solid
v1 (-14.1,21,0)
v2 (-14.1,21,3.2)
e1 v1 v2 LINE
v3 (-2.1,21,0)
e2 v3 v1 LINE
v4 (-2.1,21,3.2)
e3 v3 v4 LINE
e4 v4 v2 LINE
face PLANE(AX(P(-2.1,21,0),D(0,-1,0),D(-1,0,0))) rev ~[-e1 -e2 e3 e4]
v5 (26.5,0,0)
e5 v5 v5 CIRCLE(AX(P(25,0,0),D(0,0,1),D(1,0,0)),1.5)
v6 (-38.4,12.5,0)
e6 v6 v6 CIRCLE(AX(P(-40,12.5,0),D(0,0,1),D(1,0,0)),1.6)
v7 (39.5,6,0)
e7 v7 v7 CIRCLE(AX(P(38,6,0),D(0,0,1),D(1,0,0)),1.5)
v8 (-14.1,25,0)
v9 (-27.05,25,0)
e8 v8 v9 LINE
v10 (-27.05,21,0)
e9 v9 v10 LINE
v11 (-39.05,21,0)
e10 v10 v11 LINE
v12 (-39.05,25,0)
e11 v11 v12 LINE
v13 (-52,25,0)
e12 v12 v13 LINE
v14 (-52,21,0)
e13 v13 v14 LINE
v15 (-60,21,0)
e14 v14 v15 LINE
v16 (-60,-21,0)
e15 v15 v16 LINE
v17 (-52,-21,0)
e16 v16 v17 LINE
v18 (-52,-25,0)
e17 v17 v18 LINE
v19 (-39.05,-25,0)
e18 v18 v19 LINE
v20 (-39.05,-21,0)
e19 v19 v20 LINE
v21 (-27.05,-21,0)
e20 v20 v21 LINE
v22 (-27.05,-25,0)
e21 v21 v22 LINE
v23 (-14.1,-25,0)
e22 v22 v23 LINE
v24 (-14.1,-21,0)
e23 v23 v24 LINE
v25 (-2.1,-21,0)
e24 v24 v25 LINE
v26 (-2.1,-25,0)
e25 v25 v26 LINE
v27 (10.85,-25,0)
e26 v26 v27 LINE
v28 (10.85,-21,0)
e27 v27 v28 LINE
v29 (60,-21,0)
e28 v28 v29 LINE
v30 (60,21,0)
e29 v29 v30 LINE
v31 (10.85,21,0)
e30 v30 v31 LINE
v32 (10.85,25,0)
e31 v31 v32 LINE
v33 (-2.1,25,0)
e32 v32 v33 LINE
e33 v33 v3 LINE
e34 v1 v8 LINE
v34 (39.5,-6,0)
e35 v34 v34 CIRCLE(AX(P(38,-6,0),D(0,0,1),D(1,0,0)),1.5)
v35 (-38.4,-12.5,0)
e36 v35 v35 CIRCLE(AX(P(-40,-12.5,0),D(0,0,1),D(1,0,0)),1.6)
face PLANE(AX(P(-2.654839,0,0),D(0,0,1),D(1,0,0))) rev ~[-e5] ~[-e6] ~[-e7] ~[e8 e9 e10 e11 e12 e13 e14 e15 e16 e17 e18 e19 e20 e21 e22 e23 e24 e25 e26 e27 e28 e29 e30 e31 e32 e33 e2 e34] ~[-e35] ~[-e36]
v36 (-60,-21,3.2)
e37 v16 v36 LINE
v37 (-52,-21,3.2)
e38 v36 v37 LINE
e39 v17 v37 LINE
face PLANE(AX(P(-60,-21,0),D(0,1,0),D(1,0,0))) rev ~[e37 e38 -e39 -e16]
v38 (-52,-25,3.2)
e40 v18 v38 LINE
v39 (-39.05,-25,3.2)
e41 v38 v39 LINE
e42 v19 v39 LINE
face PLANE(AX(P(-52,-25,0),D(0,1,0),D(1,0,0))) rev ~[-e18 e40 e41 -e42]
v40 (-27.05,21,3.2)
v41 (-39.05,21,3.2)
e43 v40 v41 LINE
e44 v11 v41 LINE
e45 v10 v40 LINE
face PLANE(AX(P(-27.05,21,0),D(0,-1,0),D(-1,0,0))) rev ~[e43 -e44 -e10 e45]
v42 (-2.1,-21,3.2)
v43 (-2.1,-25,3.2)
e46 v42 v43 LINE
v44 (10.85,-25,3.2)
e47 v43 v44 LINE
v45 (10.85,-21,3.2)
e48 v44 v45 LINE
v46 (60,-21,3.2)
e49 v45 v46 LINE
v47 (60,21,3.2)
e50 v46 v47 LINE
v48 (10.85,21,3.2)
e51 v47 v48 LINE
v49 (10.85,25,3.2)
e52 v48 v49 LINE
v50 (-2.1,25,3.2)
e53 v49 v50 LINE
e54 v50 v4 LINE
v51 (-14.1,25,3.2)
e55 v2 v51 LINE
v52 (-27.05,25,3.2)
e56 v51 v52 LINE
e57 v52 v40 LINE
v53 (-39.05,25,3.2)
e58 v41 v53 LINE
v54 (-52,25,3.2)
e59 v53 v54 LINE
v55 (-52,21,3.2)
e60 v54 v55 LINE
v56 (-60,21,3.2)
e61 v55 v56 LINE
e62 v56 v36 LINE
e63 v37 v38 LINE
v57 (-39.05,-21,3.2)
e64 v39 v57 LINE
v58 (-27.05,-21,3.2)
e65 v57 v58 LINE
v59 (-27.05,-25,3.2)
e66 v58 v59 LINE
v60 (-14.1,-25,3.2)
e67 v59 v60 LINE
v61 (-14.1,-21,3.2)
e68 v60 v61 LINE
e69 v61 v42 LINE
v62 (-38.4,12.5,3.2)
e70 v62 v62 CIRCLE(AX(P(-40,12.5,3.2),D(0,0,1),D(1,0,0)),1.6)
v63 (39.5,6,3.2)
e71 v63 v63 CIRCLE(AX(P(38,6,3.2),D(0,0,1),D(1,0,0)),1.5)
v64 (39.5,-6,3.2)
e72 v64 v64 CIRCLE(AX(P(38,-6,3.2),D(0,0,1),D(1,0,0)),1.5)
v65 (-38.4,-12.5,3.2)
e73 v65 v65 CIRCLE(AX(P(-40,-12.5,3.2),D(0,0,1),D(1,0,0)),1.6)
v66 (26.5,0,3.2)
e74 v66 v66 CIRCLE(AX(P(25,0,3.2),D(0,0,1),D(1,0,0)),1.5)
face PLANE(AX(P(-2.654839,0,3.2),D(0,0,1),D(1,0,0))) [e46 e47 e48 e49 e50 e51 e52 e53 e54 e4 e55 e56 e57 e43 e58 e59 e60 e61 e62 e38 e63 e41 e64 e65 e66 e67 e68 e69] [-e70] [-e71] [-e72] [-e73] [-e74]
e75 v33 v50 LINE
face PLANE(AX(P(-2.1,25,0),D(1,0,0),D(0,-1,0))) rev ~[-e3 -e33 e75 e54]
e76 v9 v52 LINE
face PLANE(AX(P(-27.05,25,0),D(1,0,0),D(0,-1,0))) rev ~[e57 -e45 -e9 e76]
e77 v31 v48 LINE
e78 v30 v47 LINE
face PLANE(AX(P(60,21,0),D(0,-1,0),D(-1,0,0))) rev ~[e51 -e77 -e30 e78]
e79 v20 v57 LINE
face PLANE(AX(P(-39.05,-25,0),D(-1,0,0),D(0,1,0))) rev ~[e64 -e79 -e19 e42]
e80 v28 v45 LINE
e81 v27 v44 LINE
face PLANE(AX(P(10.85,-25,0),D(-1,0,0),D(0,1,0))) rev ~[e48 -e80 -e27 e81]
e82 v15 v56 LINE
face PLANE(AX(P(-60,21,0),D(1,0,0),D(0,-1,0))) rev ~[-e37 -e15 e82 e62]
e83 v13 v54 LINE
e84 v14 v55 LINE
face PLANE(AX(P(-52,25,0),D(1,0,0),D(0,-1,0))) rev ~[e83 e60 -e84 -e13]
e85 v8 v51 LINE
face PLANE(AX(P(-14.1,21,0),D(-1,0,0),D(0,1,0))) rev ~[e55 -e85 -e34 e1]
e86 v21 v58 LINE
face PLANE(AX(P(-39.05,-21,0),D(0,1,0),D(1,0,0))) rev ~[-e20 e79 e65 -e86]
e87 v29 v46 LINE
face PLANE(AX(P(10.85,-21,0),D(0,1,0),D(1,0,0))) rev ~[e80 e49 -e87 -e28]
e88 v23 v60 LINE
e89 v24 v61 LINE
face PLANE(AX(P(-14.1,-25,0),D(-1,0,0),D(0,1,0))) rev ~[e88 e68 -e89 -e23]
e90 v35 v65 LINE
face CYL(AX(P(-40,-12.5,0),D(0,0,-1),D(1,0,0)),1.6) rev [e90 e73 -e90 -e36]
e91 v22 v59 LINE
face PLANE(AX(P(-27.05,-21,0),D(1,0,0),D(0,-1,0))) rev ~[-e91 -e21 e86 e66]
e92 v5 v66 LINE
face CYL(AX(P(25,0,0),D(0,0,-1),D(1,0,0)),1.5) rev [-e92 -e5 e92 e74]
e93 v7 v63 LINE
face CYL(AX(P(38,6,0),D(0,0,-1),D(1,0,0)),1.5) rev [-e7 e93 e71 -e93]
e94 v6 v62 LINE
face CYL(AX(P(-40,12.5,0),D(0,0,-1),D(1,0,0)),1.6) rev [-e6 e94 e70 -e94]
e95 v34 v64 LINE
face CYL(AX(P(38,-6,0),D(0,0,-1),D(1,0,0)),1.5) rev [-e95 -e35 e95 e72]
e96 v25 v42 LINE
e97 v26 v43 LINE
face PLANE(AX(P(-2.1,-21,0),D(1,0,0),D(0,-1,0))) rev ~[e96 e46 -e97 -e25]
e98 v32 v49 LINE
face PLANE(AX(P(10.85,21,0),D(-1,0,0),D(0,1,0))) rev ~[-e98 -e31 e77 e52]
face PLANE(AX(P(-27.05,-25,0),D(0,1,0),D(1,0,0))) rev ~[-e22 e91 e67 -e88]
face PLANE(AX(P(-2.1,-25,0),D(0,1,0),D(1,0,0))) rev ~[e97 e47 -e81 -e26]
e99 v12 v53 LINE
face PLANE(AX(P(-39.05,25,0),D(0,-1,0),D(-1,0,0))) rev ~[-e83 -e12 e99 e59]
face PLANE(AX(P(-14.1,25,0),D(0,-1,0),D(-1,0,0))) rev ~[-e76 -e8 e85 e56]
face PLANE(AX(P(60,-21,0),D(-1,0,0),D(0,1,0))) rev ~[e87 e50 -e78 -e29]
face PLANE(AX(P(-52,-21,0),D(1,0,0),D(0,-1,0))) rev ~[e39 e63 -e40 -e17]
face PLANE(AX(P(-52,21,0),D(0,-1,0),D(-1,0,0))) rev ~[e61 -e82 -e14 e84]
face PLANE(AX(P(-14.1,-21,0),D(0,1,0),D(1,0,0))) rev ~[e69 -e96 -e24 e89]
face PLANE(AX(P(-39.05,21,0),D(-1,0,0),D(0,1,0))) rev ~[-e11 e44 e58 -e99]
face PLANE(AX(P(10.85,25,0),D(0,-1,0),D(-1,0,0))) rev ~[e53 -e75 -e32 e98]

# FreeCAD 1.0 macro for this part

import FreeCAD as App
import Part
import Sketcher


def add_polygon(sketch, points):
    """Adds a closed chain of lines whose ends are joined by coincident constraints."""
    first, n = sketch.GeometryCount, len(points)
    for a, b in zip(points, points[1:] + points[:1]):
        sketch.addGeometry(Part.LineSegment(App.Vector(*a, 0), App.Vector(*b, 0)), False)
    for i in range(n):
        sketch.addConstraint(Sketcher.Constraint("Coincident", first + i, 2, first + (i + 1) % n, 1))

doc = App.newDocument("Part")
body = doc.addObject("PartDesign::Body", "Body")

# Sketch on XY plane
sketch1 = body.newObject("Sketcher::SketchObject", "Sketch")
sketch1.AttachmentSupport = (doc.getObject("XY_Plane"), [""])
sketch1.MapMode = "FlatFace"
add_polygon(sketch1, [(-52, 21), (-60, 21), (-60, -21), (-52, -21), (-52, -25), (-39, -25), (-39, -21), (-27.1, -21), (-27.1, -25), (-14.1, -25), (-14.1, -21), (-2.1, -21), (-2.1, -25), (10.8, -25), (10.8, -21), (60, -21), (60, 21), (10.8, 21), (10.8, 25), (-2.1, 25), (-2.1, 21), (-14.1, 21), (-14.1, 25), (-27.1, 25), (-27.1, 21), (-39, 21), (-39, 25), (-52, 25)])  # lines 0-27
sketch1.addGeometry(Part.Circle(App.Vector(-40, -12.5, 0), App.Vector(0, 0, 1), 1.6), False)  # 28
sketch1.addGeometry(Part.Circle(App.Vector(38, -6, 0), App.Vector(0, 0, 1), 1.5), False)  # 29
sketch1.addGeometry(Part.Circle(App.Vector(-40, 12.5, 0), App.Vector(0, 0, 1), 1.6), False)  # 30
sketch1.addGeometry(Part.Circle(App.Vector(25, 0, 0), App.Vector(0, 0, 1), 1.5), False)  # 31
sketch1.addGeometry(Part.Circle(App.Vector(38, 6, 0), App.Vector(0, 0, 1), 1.5), False)  # 32
sketch1.addConstraint(Sketcher.Constraint("Horizontal", 0))
sketch1.addConstraint(Sketcher.Constraint("Vertical", 1))
sketch1.addConstraint(Sketcher.Constraint("Horizontal", 2))
sketch1.addConstraint(Sketcher.Constraint("Vertical", 3))
sketch1.addConstraint(Sketcher.Constraint("Horizontal", 4))
sketch1.addConstraint(Sketcher.Constraint("Vertical", 5))
sketch1.addConstraint(Sketcher.Constraint("Horizontal", 6))
sketch1.addConstraint(Sketcher.Constraint("Vertical", 7))
sketch1.addConstraint(Sketcher.Constraint("Horizontal", 8))
sketch1.addConstraint(Sketcher.Constraint("Vertical", 9))
sketch1.addConstraint(Sketcher.Constraint("Horizontal", 10))
sketch1.addConstraint(Sketcher.Constraint("Vertical", 11))
sketch1.addConstraint(Sketcher.Constraint("Horizontal", 12))
sketch1.addConstraint(Sketcher.Constraint("Vertical", 13))
sketch1.addConstraint(Sketcher.Constraint("Horizontal", 14))
sketch1.addConstraint(Sketcher.Constraint("Vertical", 15))
sketch1.addConstraint(Sketcher.Constraint("Horizontal", 16))
sketch1.addConstraint(Sketcher.Constraint("Vertical", 17))
sketch1.addConstraint(Sketcher.Constraint("Horizontal", 18))
sketch1.addConstraint(Sketcher.Constraint("Vertical", 19))
sketch1.addConstraint(Sketcher.Constraint("Horizontal", 20))
sketch1.addConstraint(Sketcher.Constraint("Vertical", 21))
sketch1.addConstraint(Sketcher.Constraint("Horizontal", 22))
sketch1.addConstraint(Sketcher.Constraint("Vertical", 23))
sketch1.addConstraint(Sketcher.Constraint("Horizontal", 24))
sketch1.addConstraint(Sketcher.Constraint("Vertical", 25))
sketch1.addConstraint(Sketcher.Constraint("Horizontal", 26))
sketch1.addConstraint(Sketcher.Constraint("Vertical", 27))
sketch1.addConstraint(Sketcher.Constraint("Equal", 28, 30))
sketch1.addConstraint(Sketcher.Constraint("Equal", 29, 31))
sketch1.addConstraint(Sketcher.Constraint("Equal", 31, 32))
sketch1.addConstraint(Sketcher.Constraint("Symmetric", 0, 2, 14, 2, -1, 1))
sketch1.addConstraint(Sketcher.Constraint("Symmetric", 28, 3, 30, 3, -1))
sketch1.addConstraint(Sketcher.Constraint("Symmetric", 29, 3, 32, 3, -1))
sketch1.addConstraint(Sketcher.Constraint("Symmetric", 13, 2, 16, 2, -1))
sketch1.addConstraint(Sketcher.Constraint("Symmetric", 11, 2, 18, 2, -1))
sketch1.addConstraint(Sketcher.Constraint("Symmetric", 9, 2, 20, 2, -1))
sketch1.addConstraint(Sketcher.Constraint("Symmetric", 7, 2, 22, 2, -1))
sketch1.addConstraint(Sketcher.Constraint("Symmetric", 5, 2, 24, 2, -1))
sketch1.addConstraint(Sketcher.Constraint("Symmetric", 3, 2, 26, 2, -1))
sketch1.addConstraint(Sketcher.Constraint("PointOnObject", 31, 3, -1))
sketch1.addConstraint(Sketcher.Constraint("Horizontal", 2, 2, 5, 2))
sketch1.addConstraint(Sketcher.Constraint("Horizontal", 4, 2, 7, 2))
sketch1.addConstraint(Sketcher.Constraint("Horizontal", 6, 2, 9, 2))
sketch1.addConstraint(Sketcher.Constraint("Horizontal", 8, 2, 11, 2))
sketch1.addConstraint(Sketcher.Constraint("Horizontal", 10, 2, 13, 2))
sketch1.addConstraint(Sketcher.Constraint("Equal", 4, 8))
sketch1.addConstraint(Sketcher.Constraint("Equal", 6, 10))
sketch1.addConstraint(Sketcher.Constraint("Equal", 8, 12))
sketch1.addConstraint(Sketcher.Constraint("Diameter", 29, 3.0))
sketch1.addConstraint(Sketcher.Constraint("Diameter", 28, 3.2))
sketch1.addConstraint(Sketcher.Constraint("DistanceX", 0, 2, 0, 1, 8.0))
sketch1.addConstraint(Sketcher.Constraint("DistanceX", 6, 1, 6, 2, 12.0))
sketch1.addConstraint(Sketcher.Constraint("DistanceY", 1, 2, 1, 1, 42.0))
sketch1.addConstraint(Sketcher.Constraint("DistanceY", 3, 2, 3, 1, 4.0))
sketch1.addConstraint(Sketcher.Constraint("DistanceX", 28, 3, -1, 1, 40.0))
sketch1.addConstraint(Sketcher.Constraint("DistanceX", -1, 1, 29, 3, 38.0))
sketch1.addConstraint(Sketcher.Constraint("DistanceY", 29, 3, -1, 1, 6.0))
sketch1.addConstraint(Sketcher.Constraint("DistanceX", -1, 1, 31, 3, 25.0))
sketch1.addConstraint(Sketcher.Constraint("DistanceX", 0, 2, -1, 1, 60.0))
sketch1.addConstraint(Sketcher.Constraint("DistanceY", 28, 3, 30, 3, 25.0))
sketch1.addConstraint(Sketcher.Constraint("DistanceX", 4, 1, 4, 2, 12.95))
pad1 = body.newObject("PartDesign::Pad", "Pad")
pad1.Profile = sketch1
pad1.Length = 3.2

doc.recompute()
